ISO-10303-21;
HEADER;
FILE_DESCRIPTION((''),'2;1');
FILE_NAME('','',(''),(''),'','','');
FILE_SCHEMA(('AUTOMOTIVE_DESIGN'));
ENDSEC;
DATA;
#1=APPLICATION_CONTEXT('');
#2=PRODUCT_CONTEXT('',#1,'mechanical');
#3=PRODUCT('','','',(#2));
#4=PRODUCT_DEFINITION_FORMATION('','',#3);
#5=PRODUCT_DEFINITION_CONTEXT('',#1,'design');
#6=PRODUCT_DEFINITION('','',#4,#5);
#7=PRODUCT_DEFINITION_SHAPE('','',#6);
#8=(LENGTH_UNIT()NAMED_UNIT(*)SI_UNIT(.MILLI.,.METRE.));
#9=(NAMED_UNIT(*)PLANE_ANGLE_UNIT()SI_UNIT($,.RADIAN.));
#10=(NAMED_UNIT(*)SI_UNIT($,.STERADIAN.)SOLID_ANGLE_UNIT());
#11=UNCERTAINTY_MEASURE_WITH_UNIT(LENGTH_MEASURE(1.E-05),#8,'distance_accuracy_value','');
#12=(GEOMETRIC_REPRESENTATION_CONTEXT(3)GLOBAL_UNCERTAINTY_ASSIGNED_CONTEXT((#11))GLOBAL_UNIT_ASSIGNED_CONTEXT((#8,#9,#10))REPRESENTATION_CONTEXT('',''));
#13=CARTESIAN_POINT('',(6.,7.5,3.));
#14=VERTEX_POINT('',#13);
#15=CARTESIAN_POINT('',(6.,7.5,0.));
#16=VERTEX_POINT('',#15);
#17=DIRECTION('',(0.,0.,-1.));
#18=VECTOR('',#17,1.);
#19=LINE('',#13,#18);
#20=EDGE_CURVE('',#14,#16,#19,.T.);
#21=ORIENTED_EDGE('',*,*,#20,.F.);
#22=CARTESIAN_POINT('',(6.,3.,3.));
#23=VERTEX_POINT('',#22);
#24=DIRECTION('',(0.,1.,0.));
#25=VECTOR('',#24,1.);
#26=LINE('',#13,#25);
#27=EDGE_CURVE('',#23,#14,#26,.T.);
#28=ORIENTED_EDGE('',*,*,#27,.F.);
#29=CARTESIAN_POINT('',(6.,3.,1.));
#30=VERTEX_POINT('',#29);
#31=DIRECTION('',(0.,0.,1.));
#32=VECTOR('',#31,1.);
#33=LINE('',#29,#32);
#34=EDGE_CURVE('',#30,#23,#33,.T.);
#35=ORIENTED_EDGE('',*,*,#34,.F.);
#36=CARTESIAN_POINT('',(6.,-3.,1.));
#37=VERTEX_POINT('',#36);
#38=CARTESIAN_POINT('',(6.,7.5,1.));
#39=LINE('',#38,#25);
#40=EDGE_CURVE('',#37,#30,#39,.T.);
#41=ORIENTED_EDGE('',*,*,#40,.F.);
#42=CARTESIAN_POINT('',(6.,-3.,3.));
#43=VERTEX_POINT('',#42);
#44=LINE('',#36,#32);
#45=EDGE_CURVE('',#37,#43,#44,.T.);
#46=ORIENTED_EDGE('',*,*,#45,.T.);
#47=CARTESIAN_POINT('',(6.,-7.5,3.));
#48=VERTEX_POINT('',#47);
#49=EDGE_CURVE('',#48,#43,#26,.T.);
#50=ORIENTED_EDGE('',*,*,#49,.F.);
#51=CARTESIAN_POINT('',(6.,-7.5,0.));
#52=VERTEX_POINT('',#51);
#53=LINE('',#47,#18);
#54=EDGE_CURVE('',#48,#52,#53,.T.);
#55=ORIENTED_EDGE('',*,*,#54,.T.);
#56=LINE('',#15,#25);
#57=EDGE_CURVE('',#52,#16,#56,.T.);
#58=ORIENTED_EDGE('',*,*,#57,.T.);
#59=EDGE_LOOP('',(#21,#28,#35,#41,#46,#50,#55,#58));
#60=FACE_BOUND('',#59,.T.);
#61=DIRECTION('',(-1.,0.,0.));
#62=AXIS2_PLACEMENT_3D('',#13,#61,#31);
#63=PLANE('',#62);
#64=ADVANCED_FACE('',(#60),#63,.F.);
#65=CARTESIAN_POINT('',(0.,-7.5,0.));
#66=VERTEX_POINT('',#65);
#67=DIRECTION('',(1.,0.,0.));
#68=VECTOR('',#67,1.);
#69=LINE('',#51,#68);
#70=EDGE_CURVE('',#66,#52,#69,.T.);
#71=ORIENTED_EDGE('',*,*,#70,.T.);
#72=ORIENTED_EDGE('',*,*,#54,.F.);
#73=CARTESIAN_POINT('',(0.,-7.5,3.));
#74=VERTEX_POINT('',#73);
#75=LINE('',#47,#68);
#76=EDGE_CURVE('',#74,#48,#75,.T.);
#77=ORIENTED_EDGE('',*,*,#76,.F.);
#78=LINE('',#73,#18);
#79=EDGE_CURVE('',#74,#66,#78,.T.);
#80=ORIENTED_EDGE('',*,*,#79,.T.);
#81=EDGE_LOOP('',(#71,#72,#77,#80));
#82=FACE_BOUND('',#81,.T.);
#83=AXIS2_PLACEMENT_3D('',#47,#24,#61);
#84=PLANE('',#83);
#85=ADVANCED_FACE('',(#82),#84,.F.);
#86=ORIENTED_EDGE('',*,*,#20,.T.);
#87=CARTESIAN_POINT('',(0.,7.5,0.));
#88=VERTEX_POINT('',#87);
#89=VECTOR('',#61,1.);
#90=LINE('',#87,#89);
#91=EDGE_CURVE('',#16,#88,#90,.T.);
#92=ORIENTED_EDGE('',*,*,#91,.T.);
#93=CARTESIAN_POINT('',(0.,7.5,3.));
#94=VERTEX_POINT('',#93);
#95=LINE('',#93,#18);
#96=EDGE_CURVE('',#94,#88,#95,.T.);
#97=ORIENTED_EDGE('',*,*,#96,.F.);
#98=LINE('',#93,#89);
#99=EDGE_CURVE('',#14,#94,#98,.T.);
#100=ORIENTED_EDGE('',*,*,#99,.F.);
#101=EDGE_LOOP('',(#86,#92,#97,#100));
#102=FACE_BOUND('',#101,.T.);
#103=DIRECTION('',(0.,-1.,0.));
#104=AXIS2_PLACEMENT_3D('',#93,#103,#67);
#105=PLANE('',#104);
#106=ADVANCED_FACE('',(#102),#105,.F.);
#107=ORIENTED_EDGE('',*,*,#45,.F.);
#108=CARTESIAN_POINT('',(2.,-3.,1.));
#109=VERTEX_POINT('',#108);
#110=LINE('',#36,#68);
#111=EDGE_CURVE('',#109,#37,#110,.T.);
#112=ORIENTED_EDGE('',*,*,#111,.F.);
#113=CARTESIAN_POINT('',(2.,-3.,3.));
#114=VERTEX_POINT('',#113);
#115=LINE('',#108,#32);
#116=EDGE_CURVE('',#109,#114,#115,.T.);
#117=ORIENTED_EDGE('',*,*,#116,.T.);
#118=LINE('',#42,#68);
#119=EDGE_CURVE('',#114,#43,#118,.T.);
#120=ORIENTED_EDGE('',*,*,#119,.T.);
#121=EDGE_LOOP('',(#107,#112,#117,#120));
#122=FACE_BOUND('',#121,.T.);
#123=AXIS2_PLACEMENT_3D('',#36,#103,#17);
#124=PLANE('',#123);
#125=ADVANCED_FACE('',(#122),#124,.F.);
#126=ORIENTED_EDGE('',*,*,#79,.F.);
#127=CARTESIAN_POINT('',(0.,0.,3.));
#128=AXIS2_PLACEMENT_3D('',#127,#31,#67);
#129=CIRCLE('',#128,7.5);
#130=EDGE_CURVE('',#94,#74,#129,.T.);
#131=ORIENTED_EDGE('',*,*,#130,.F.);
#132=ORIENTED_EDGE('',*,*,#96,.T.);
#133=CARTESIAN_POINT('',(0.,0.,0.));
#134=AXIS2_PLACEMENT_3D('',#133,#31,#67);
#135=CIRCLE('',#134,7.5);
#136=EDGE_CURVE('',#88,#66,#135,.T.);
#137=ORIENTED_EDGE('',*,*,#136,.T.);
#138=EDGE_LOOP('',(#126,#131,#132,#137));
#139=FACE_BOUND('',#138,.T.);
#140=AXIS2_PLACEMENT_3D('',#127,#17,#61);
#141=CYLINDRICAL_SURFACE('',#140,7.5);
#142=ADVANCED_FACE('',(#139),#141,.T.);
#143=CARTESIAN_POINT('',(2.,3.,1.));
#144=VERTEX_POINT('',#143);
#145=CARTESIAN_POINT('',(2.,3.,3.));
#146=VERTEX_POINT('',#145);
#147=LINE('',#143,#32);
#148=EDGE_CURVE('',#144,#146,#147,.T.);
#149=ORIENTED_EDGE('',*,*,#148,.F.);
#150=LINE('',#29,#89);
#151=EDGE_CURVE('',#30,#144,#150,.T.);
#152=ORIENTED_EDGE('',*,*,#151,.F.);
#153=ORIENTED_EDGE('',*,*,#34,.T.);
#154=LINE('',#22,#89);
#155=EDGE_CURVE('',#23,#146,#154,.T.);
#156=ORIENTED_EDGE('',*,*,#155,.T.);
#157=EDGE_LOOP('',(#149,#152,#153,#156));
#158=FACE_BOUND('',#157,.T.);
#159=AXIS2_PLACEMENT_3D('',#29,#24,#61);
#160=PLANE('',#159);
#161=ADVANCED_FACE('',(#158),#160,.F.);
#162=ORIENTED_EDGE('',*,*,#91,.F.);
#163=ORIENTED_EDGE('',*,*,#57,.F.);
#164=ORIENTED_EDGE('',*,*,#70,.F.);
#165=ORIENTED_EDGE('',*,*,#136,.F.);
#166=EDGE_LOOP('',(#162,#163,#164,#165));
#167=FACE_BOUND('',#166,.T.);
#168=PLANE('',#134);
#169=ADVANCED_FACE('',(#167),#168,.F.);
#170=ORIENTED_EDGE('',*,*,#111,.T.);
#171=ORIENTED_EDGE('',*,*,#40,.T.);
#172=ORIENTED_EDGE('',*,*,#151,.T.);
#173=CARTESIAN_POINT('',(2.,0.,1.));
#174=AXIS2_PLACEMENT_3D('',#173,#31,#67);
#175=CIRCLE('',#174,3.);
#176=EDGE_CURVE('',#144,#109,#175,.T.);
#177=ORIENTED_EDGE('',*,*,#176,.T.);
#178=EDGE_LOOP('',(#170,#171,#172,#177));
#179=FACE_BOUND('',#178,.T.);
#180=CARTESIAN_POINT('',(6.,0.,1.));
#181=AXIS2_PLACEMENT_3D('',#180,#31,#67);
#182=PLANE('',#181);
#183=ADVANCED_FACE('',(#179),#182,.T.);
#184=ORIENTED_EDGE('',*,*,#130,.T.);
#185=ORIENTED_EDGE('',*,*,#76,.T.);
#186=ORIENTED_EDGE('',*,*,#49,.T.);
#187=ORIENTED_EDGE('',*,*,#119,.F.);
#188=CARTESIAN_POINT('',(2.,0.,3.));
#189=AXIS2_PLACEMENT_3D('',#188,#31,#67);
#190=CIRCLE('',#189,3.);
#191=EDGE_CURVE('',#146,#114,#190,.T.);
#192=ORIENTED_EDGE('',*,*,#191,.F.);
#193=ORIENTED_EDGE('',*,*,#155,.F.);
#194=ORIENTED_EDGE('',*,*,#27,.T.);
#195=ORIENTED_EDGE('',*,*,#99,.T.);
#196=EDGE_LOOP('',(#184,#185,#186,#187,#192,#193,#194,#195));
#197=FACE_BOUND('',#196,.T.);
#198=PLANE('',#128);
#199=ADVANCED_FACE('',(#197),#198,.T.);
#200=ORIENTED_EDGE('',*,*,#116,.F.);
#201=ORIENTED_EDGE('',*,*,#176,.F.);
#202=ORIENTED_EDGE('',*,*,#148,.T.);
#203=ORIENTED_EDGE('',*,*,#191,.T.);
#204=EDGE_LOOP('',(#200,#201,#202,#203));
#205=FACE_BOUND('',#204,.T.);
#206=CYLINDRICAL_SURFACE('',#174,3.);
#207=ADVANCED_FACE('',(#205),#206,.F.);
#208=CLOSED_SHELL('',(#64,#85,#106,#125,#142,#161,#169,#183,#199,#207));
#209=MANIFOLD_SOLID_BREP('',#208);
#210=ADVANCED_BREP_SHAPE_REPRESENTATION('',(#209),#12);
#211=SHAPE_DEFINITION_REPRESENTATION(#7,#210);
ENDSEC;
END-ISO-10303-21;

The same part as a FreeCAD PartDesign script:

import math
import FreeCAD as App
import Part
import Sketcher

V = App.Vector
Q = App.Units.Quantity

doc = App.newDocument("Part")
body = doc.addObject("PartDesign::Body", "Body")

sketch1 = body.newObject("Sketcher::SketchObject", "Sketch")
sketch1.AttachmentSupport = (doc.getObject("XY_Plane"), [""])
sketch1.MapMode = "FlatFace"
sketch1.addGeometry([
    Part.LineSegment(V(6, 7.5, 0), V(0, 7.5, 0)),
    Part.ArcOfCircle(Part.Circle(V(0, 0, 0), V(0, 0, 1), 7.5), math.radians(90), math.radians(270)),
    Part.LineSegment(V(0, -7.5, 0), V(6, -7.5, 0)),
    Part.LineSegment(V(6, -7.5, 0), V(6, 7.5, 0)),
], False)
sketch1.addConstraint([
    Sketcher.Constraint("Tangent", 0, 2, 1, 1),
    Sketcher.Constraint("Tangent", 1, 2, 2, 1),
    Sketcher.Constraint("Coincident", 2, 2, 3, 1),
    Sketcher.Constraint("Coincident", 3, 2, 0, 1),
    Sketcher.Constraint("Horizontal", 0),
    Sketcher.Constraint("Horizontal", 2),
    Sketcher.Constraint("Vertical", 3),
    Sketcher.Constraint("Coincident", 1, 3, -1, 1),
    Sketcher.Constraint("Radius", 1, Q("7.5 mm")),
    Sketcher.Constraint("DistanceX", 0, 2, 0, 1, Q("6 mm")),
])
pad1 = body.newObject("PartDesign::Pad", "Pad")
pad1.Profile = sketch1
pad1.Length = 3

sketch2 = body.newObject("Sketcher::SketchObject", "Sketch001")
sketch2.AttachmentSupport = (doc.getObject("XY_Plane"), [""])
sketch2.MapMode = "FlatFace"
sketch2.AttachmentOffset = App.Placement(V(0, 0, 3), App.Rotation())
sketch2.addGeometry([
    Part.LineSegment(V(2, -3, 0), V(6, -3, 0)),
    Part.ArcOfCircle(Part.Circle(V(6, 0, 0), V(0, 0, 1), 3), math.radians(-90), math.radians(90)),
    Part.LineSegment(V(6, 3, 0), V(2, 3, 0)),
    Part.ArcOfCircle(Part.Circle(V(2, 0, 0), V(0, 0, 1), 3), math.radians(90), math.radians(270)),
], False)
sketch2.addConstraint([
    Sketcher.Constraint("Tangent", 0, 2, 1, 1),
    Sketcher.Constraint("Tangent", 1, 2, 2, 1),
    Sketcher.Constraint("Tangent", 2, 2, 3, 1),
    Sketcher.Constraint("Tangent", 3, 2, 0, 1),
    Sketcher.Constraint("Horizontal", 0),
    Sketcher.Constraint("Horizontal", 2),
    Sketcher.Constraint("PointOnObject", 1, 3, -1),
    Sketcher.Constraint("Radius", 1, Q("3 mm")),
    Sketcher.Constraint("DistanceX", 0, 1, 0, 2, Q("4 mm")),
    Sketcher.Constraint("DistanceX", -1, 1, 1, 3, Q("6 mm")),
])
pocket1 = body.newObject("PartDesign::Pocket", "Pocket")
pocket1.Profile = sketch2
pocket1.Length = 2

doc.recompute()
